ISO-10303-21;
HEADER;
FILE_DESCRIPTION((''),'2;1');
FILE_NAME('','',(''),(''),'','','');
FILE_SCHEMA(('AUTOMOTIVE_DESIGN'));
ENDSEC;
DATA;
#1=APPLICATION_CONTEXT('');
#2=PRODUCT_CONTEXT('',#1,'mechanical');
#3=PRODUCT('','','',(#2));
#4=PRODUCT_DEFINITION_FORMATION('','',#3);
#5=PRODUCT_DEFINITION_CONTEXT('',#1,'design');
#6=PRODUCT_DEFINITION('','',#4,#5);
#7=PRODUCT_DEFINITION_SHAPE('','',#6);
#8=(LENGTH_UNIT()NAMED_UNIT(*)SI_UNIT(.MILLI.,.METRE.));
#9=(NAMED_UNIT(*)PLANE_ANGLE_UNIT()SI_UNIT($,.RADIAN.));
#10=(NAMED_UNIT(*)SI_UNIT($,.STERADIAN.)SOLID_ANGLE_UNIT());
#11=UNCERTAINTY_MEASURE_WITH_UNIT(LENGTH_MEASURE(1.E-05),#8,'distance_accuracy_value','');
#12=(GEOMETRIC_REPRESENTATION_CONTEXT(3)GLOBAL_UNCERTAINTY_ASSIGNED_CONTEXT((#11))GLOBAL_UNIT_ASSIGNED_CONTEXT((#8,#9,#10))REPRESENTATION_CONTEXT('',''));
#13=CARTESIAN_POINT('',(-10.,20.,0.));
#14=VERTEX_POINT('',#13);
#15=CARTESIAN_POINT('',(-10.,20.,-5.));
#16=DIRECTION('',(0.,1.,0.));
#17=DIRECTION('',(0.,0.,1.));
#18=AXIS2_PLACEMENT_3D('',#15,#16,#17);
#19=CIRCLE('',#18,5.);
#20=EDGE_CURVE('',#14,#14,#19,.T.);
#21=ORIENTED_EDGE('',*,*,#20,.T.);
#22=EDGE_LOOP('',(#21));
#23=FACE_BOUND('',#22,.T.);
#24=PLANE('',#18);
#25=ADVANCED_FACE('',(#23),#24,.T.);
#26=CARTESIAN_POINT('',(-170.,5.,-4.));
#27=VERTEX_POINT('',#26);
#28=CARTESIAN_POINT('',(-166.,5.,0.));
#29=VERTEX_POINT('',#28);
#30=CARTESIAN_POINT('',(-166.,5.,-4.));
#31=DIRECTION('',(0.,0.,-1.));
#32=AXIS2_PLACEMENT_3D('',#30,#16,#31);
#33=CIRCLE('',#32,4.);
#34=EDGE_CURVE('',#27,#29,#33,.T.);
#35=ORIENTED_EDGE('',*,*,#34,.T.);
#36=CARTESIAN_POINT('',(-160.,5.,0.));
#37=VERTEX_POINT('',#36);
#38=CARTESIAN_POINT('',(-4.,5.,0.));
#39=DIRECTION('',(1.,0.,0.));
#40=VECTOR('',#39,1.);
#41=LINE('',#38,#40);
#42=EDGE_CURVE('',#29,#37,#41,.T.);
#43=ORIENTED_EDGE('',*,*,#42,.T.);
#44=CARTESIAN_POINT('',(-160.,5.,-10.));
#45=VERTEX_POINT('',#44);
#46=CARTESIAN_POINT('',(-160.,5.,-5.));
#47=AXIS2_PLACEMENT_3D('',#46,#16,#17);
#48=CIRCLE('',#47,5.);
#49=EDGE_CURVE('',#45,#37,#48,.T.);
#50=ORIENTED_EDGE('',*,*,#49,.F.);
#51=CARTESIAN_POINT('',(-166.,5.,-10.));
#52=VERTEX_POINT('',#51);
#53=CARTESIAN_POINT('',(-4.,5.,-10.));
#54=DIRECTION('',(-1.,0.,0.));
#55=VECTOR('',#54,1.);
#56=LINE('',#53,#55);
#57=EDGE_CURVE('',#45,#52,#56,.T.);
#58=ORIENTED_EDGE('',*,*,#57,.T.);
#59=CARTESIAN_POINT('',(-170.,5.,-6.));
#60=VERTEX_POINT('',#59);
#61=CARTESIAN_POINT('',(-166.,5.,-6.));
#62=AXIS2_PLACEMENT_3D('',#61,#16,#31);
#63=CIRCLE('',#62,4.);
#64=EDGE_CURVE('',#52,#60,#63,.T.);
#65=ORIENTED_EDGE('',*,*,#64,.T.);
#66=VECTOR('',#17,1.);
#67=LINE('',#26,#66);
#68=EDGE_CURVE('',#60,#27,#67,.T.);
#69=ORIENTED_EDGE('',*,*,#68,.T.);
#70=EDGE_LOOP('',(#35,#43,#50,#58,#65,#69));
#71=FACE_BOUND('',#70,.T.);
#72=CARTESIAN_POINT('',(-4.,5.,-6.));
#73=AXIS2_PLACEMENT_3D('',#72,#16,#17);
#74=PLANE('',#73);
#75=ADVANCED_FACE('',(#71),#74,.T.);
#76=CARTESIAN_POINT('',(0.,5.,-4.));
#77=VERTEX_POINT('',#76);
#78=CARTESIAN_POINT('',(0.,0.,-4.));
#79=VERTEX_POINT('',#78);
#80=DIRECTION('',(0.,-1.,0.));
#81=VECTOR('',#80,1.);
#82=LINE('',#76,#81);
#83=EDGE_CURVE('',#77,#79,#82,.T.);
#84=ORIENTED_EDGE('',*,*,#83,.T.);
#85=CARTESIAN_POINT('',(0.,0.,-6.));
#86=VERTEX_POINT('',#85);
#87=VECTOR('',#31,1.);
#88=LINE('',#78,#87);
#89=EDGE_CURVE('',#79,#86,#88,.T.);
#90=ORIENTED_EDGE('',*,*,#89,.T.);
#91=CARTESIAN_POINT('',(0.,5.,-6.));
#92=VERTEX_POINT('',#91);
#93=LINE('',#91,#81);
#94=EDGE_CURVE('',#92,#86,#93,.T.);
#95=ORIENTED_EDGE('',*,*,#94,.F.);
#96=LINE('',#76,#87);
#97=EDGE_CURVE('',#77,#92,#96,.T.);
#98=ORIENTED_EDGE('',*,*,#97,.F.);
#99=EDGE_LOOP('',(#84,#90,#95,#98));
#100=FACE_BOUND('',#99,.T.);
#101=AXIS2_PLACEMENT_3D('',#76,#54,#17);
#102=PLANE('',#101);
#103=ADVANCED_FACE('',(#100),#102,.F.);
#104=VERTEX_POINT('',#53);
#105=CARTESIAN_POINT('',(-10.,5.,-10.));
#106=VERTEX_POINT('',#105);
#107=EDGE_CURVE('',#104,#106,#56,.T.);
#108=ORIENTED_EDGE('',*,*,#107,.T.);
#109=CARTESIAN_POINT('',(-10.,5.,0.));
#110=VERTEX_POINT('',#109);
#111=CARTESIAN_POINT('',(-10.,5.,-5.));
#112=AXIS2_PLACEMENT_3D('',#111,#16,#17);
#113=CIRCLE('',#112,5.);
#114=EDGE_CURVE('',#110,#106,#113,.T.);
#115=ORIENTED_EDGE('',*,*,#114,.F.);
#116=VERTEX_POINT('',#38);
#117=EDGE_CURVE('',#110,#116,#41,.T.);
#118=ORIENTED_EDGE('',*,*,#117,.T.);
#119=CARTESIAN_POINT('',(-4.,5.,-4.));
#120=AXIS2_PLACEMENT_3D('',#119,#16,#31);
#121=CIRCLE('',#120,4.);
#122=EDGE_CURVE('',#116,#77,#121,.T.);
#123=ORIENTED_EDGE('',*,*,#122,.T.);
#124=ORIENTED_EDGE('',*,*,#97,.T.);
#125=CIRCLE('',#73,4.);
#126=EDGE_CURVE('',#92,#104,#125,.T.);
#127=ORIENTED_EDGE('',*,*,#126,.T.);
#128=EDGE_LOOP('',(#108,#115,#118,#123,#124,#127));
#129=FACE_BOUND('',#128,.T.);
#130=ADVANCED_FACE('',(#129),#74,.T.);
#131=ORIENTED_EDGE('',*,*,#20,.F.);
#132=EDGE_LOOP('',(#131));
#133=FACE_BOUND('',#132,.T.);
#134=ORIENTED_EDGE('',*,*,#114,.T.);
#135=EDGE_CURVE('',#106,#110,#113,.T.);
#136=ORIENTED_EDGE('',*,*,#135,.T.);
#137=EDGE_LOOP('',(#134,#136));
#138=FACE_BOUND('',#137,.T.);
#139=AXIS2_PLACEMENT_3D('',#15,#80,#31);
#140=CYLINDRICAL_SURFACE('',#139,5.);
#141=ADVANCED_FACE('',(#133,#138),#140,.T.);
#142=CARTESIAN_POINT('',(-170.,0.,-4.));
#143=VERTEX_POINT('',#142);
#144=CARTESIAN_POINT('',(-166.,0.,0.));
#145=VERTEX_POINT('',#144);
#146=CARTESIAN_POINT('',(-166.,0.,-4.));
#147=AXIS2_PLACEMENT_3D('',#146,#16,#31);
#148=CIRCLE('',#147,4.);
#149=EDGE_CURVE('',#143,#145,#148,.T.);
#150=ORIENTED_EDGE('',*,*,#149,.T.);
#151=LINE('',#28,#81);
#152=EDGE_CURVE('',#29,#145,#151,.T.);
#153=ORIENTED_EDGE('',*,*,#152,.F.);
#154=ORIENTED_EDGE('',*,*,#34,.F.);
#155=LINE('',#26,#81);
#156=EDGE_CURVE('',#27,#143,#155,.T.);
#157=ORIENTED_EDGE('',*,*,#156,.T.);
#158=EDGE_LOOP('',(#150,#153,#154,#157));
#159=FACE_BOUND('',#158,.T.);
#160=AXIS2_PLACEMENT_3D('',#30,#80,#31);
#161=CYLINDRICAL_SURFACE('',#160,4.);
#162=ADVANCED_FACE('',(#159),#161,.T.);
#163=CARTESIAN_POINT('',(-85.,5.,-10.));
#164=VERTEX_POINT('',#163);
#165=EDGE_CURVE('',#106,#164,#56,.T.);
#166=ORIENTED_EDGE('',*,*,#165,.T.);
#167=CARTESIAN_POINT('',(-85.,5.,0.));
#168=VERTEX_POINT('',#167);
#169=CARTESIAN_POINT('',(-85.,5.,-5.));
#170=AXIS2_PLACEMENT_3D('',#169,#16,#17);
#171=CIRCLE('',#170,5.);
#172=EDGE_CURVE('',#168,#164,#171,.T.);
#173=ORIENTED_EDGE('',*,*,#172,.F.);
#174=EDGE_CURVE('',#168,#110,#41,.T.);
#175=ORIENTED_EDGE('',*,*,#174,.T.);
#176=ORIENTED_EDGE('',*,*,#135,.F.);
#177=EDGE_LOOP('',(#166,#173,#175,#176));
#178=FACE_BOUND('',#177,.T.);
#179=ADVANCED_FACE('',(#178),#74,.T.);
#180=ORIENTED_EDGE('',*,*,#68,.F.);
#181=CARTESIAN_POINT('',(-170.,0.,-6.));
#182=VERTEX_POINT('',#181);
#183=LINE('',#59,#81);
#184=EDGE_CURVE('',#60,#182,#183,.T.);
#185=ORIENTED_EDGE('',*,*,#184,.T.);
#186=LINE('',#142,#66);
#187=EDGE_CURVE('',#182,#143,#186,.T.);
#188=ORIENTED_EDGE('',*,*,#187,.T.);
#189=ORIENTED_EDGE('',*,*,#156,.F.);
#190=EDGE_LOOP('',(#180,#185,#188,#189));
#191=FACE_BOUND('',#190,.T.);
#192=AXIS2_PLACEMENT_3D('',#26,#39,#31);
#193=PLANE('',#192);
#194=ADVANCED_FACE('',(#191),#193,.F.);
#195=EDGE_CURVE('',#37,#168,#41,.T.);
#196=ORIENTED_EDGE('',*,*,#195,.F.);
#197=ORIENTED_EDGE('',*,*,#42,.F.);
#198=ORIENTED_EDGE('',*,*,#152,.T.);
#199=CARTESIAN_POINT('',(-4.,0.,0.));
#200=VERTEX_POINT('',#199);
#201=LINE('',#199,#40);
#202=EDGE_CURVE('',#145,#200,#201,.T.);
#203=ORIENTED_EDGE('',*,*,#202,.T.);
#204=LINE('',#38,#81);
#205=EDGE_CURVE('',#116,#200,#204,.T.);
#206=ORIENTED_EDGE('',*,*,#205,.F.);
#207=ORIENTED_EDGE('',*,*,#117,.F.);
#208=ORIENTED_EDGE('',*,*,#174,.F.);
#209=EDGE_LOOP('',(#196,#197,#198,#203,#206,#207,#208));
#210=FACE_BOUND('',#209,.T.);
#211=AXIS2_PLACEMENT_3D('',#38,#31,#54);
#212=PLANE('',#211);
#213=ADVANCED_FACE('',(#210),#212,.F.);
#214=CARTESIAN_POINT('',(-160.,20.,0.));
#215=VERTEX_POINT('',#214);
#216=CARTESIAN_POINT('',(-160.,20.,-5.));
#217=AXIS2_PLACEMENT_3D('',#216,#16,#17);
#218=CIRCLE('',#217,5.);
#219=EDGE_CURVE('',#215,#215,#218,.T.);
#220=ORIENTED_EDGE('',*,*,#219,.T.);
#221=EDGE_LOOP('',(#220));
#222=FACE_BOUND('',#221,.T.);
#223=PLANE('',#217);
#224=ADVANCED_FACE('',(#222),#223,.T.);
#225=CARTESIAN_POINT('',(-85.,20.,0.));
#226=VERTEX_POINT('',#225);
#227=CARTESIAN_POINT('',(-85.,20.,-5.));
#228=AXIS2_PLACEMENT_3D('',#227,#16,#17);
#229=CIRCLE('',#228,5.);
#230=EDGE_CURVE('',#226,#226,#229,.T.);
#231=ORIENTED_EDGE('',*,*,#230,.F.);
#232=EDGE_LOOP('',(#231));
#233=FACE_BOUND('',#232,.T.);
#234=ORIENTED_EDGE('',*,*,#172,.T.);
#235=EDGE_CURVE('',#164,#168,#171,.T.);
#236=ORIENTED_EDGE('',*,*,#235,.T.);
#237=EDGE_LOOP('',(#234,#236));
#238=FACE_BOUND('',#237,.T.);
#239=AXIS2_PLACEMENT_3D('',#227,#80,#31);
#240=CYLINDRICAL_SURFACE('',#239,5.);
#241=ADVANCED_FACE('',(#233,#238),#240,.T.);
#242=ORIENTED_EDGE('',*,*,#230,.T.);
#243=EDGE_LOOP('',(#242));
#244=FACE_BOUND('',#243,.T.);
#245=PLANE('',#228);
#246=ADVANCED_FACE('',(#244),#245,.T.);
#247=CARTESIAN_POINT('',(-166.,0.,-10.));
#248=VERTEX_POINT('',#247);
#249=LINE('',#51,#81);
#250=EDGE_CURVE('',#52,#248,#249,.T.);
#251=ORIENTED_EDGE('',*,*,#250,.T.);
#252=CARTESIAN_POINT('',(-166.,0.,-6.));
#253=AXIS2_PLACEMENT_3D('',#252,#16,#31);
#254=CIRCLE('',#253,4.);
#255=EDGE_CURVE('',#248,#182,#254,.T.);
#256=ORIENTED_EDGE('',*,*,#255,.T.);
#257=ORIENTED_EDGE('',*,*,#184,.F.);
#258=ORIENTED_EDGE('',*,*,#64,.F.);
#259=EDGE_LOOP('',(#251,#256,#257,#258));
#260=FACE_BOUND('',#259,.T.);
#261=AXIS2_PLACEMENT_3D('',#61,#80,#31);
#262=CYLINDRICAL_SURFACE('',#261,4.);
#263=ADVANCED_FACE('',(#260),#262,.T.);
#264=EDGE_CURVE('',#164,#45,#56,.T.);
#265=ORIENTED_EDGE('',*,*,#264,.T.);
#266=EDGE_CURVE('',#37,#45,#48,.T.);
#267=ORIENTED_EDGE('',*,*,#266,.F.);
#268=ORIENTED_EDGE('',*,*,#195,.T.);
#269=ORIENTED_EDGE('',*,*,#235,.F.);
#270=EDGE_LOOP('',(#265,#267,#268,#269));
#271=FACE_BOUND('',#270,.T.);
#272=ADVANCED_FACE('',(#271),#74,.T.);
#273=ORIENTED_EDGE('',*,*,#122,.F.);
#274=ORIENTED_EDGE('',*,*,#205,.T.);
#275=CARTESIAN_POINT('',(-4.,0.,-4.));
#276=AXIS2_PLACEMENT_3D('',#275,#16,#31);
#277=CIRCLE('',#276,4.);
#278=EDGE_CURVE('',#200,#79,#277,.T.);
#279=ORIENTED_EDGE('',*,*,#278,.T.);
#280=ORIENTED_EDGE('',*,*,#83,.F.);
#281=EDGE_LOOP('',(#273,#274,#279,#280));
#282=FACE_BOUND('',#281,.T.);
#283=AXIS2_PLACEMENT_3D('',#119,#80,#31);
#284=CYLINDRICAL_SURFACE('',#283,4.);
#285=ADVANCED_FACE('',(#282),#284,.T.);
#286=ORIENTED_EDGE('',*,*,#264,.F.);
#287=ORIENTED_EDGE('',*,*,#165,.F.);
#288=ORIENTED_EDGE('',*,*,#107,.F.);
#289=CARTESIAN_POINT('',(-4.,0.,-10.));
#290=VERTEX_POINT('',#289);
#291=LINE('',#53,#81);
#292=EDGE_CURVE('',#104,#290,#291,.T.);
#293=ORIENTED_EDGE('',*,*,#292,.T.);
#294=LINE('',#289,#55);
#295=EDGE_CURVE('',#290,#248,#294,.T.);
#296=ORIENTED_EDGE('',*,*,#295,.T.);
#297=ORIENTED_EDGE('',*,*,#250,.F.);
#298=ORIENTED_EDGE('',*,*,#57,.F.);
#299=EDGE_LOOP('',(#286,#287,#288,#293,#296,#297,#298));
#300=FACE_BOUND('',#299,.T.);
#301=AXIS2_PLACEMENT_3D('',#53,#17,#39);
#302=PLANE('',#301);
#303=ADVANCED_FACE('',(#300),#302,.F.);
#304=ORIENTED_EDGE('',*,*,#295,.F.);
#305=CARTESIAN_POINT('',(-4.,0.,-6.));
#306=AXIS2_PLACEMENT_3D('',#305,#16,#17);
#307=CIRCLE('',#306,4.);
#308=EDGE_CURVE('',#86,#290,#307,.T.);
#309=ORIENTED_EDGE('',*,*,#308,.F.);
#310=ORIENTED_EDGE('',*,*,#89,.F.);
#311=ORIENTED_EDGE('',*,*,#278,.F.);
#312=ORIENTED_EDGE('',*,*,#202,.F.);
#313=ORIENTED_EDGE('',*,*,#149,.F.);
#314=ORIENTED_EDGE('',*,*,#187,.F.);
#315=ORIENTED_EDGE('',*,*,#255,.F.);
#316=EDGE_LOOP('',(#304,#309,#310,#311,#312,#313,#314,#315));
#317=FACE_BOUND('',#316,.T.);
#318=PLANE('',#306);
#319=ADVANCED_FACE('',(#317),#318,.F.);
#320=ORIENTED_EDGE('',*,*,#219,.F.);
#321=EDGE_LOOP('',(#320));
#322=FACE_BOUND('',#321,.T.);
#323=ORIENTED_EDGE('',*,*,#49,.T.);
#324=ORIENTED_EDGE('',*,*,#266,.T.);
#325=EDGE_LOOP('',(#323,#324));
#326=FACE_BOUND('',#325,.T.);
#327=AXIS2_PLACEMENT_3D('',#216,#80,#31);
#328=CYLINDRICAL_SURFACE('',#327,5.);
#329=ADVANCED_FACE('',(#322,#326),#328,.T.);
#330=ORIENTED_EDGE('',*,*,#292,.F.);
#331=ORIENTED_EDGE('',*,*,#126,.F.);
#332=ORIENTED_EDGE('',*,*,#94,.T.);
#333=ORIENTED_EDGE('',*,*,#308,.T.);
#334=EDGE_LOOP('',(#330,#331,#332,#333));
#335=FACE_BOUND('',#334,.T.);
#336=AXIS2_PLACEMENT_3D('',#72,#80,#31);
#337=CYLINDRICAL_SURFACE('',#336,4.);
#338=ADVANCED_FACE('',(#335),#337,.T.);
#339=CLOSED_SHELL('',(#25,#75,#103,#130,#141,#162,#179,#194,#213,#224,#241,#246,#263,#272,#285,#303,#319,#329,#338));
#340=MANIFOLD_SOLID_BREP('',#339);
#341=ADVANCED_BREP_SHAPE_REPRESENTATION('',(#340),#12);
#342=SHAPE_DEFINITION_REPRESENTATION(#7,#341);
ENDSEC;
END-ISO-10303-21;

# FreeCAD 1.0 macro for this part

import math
import FreeCAD as App
import Part
import Sketcher
from FreeCAD import Vector

doc = App.newDocument("Part")
body = doc.addObject("PartDesign::Body", "Body")

# Sketch on XZ plane
sketch1 = body.newObject("Sketcher::SketchObject", "Sketch")
sketch1.AttachmentSupport = (doc.getObject("XZ_Plane"), [""])
sketch1.MapMode = "FlatFace"
sketch1.addGeometry(Part.LineSegment(Vector(-166, 0, 0), Vector(-4, 0, 0)), False)
sketch1.addGeometry(Part.ArcOfCircle(Part.Circle(Vector(-4, -4, 0), Vector(0, 0, 1), 4), math.radians(0), math.radians(90)), False)
sketch1.addGeometry(Part.LineSegment(Vector(0, -4, 0), Vector(0, -6, 0)), False)
sketch1.addGeometry(Part.ArcOfCircle(Part.Circle(Vector(-4, -6, 0), Vector(0, 0, 1), 4), math.radians(-90), math.radians(0)), False)
sketch1.addGeometry(Part.LineSegment(Vector(-4, -10, 0), Vector(-166, -10, 0)), False)
sketch1.addGeometry(Part.ArcOfCircle(Part.Circle(Vector(-166, -6, 0), Vector(0, 0, 1), 4), math.radians(180), math.radians(270)), False)
sketch1.addGeometry(Part.LineSegment(Vector(-170, -6, 0), Vector(-170, -4, 0)), False)
sketch1.addGeometry(Part.ArcOfCircle(Part.Circle(Vector(-166, -4, 0), Vector(0, 0, 1), 4), math.radians(90), math.radians(180)), False)
sketch1.addConstraint(Sketcher.Constraint("Tangent", 0, 2, 1, 2))
sketch1.addConstraint(Sketcher.Constraint("Tangent", 1, 1, 2, 1))
sketch1.addConstraint(Sketcher.Constraint("Tangent", 2, 2, 3, 2))
sketch1.addConstraint(Sketcher.Constraint("Tangent", 3, 1, 4, 1))
sketch1.addConstraint(Sketcher.Constraint("Tangent", 4, 2, 5, 2))
sketch1.addConstraint(Sketcher.Constraint("Tangent", 5, 1, 6, 1))
sketch1.addConstraint(Sketcher.Constraint("Tangent", 6, 2, 7, 2))
sketch1.addConstraint(Sketcher.Constraint("Tangent", 7, 1, 0, 1))
sketch1.addConstraint(Sketcher.Constraint("Horizontal", 0))
sketch1.addConstraint(Sketcher.Constraint("Vertical", 2))
sketch1.addConstraint(Sketcher.Constraint("Horizontal", 4))
sketch1.addConstraint(Sketcher.Constraint("Vertical", 6))
sketch1.addConstraint(Sketcher.Constraint("Equal", 1, 3))
sketch1.addConstraint(Sketcher.Constraint("Equal", 3, 5))
sketch1.addConstraint(Sketcher.Constraint("Equal", 5, 7))
sketch1.addConstraint(Sketcher.Constraint("PointOnObject", 0, 2, -1))
sketch1.addConstraint(Sketcher.Constraint("PointOnObject", 1, 1, -2))
sketch1.addConstraint(Sketcher.Constraint("Radius", 1, 4.0))
sketch1.addConstraint(Sketcher.Constraint("DistanceX", 0, 1, 0, 2, 162.0))
sketch1.addConstraint(Sketcher.Constraint("DistanceY", 2, 2, 2, 1, 2.0))
pad1 = body.newObject("PartDesign::Pad", "Pad")
pad1.Profile = sketch1
pad1.Length = 5
pad1.Reversed = True

# Sketch on XZ plane
sketch2 = body.newObject("Sketcher::SketchObject", "Sketch001")
sketch2.AttachmentSupport = (doc.getObject("XZ_Plane"), [""])
sketch2.MapMode = "FlatFace"
sketch2.AttachmentOffset = App.Placement(Vector(0, 0, -5), App.Rotation())
sketch2.addGeometry(Part.Circle(Vector(-160, -5, 0), Vector(0, 0, 1), 5), False)
sketch2.addGeometry(Part.Circle(Vector(-85, -5, 0), Vector(0, 0, 1), 5), False)
sketch2.addGeometry(Part.Circle(Vector(-10, -5, 0), Vector(0, 0, 1), 5), False)
sketch2.addConstraint(Sketcher.Constraint("Equal", 0, 1))
sketch2.addConstraint(Sketcher.Constraint("Equal", 1, 2))
sketch2.addConstraint(Sketcher.Constraint("Horizontal", 0, 3, 1, 3))
sketch2.addConstraint(Sketcher.Constraint("Horizontal", 1, 3, 2, 3))
sketch2.addConstraint(Sketcher.Constraint("Diameter", 0, 10.0))
sketch2.addConstraint(Sketcher.Constraint("DistanceX", 0, 3, -1, 1, 160.0))
sketch2.addConstraint(Sketcher.Constraint("DistanceY", 0, 3, -1, 1, 5.0))
sketch2.addConstraint(Sketcher.Constraint("DistanceX", 1, 3, -1, 1, 85.0))
sketch2.addConstraint(Sketcher.Constraint("DistanceX", 2, 3, -1, 1, 10.0))
pad2 = body.newObject("PartDesign::Pad", "Pad001")
pad2.Profile = sketch2
pad2.Length = 15
pad2.Reversed = True

doc.recompute()
